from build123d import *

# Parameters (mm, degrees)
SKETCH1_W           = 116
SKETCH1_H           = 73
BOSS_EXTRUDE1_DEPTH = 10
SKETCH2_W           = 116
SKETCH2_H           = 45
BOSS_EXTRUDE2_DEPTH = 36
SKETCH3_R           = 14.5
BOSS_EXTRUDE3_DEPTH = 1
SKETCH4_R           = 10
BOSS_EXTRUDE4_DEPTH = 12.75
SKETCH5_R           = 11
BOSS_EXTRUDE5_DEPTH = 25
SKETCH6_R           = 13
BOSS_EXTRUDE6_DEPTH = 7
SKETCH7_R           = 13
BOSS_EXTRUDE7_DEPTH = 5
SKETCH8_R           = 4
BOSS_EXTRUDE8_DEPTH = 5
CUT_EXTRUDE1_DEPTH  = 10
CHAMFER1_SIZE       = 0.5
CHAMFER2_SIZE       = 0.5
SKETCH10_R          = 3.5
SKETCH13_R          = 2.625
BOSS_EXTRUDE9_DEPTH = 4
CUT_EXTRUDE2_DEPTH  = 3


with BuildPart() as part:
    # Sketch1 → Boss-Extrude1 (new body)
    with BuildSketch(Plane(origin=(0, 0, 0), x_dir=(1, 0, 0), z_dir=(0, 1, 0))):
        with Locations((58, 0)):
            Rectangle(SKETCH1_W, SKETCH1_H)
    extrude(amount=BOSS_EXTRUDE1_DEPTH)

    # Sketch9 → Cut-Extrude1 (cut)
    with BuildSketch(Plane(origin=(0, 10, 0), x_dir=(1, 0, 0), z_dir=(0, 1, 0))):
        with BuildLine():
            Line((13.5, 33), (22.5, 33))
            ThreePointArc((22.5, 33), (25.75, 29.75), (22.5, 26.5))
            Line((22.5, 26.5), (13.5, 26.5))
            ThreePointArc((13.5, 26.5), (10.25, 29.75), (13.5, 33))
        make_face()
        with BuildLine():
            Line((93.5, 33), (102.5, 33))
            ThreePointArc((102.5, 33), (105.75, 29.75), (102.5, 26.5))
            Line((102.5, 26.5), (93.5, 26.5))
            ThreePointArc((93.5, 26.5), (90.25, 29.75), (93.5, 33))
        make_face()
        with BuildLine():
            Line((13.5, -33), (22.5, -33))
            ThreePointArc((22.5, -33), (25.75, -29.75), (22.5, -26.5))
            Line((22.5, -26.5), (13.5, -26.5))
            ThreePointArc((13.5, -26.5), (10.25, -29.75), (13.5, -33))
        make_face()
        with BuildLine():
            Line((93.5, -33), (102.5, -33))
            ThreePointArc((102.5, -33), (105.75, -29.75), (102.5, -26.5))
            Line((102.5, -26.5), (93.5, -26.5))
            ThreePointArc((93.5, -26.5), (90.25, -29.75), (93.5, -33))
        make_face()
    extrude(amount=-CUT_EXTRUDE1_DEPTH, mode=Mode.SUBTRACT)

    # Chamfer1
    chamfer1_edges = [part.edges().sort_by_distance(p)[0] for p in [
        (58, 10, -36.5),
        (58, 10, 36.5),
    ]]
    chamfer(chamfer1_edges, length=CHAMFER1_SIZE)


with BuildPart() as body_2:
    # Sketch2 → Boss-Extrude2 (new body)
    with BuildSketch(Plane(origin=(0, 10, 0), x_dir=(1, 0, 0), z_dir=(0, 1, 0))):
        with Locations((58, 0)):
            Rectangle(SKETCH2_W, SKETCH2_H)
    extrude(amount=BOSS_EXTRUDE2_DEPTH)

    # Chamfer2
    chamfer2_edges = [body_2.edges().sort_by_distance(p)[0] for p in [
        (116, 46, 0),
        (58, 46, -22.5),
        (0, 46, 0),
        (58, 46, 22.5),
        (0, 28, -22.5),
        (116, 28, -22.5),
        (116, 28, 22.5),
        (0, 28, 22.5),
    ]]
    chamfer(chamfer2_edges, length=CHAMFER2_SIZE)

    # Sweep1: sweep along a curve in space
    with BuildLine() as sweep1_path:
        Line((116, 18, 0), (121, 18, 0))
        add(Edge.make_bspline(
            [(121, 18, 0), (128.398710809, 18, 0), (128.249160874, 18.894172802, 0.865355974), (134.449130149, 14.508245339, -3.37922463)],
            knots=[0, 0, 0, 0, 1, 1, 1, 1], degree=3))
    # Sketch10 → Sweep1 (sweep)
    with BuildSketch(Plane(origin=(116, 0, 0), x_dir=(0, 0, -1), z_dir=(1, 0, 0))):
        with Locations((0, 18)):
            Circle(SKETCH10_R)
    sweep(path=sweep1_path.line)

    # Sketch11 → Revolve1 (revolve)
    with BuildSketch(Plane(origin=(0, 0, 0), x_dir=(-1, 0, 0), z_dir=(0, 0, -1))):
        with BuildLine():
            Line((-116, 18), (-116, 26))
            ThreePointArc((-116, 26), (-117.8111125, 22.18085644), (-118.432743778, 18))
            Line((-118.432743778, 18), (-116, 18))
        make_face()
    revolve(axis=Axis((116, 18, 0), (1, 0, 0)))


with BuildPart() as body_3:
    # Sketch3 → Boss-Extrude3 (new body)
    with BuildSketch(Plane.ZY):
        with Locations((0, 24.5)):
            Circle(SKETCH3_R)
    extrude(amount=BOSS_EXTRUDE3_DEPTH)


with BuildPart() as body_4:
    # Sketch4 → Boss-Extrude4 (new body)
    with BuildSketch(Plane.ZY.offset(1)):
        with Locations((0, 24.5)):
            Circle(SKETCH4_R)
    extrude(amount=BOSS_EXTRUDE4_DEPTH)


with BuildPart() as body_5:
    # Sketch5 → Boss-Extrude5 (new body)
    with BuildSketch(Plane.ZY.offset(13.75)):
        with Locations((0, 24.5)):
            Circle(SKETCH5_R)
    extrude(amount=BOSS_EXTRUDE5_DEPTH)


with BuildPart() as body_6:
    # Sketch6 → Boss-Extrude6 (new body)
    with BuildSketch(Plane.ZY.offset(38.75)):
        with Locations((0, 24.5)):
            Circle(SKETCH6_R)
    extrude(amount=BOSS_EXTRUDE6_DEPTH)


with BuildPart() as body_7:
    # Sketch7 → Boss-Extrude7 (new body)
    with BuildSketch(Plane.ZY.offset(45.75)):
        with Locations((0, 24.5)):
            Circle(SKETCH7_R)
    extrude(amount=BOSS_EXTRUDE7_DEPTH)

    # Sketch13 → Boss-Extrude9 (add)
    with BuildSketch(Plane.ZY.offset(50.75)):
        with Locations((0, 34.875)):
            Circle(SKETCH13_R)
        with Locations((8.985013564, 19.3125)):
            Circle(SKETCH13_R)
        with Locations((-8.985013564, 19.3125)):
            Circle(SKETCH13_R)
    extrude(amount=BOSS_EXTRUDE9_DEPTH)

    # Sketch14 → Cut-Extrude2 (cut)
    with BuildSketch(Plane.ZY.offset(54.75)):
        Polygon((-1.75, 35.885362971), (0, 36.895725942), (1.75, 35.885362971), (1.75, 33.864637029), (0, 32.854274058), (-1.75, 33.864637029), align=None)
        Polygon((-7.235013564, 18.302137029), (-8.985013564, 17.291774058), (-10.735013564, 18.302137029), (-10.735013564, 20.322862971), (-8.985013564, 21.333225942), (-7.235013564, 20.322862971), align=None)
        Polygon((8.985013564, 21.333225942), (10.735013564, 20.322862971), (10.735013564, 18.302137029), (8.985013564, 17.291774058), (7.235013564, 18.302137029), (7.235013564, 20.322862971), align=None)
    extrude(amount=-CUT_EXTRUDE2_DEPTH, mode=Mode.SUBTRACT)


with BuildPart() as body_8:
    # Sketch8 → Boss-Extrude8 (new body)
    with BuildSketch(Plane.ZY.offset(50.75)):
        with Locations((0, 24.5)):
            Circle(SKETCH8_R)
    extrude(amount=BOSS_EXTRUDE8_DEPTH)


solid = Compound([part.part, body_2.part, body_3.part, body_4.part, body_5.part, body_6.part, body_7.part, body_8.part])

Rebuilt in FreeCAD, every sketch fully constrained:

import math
import FreeCAD as App
import Part
import Sketcher
Q = App.Units.Quantity


def edges_at(feature, points):
    """Names of the edges that pass closest to the given points."""
    edges = feature.Shape.Edges
    near = lambda p: min(range(len(edges)), key=lambda i: edges[i].distToShape(Part.Vertex(*p))[0])
    return sorted({f"Edge{near(p) + 1}" for p in points})

doc = App.newDocument("Part")
body = doc.addObject("PartDesign::Body", "Body")

# Sketch on XZ plane
sketch1 = body.newObject("Sketcher::SketchObject", "Sketch")
sketch1.AttachmentSupport = (doc.getObject("XZ_Plane"), [""])
sketch1.MapMode = "FlatFace"
sketch1.addGeometry(Part.LineSegment(App.Vector(0, -36, 0), App.Vector(0, 36, 0)), False)
sketch1.addGeometry(Part.LineSegment(App.Vector(0, 36, 0), App.Vector(116, 36, 0)), False)
sketch1.addGeometry(Part.LineSegment(App.Vector(116, 36, 0), App.Vector(116, -36, 0)), False)
sketch1.addGeometry(Part.LineSegment(App.Vector(116, -36, 0), App.Vector(0, -36, 0)), False)
sketch1.addConstraint(Sketcher.Constraint("Coincident", 0, 2, 1, 1))
sketch1.addConstraint(Sketcher.Constraint("Coincident", 1, 2, 2, 1))
sketch1.addConstraint(Sketcher.Constraint("Coincident", 2, 2, 3, 1))
sketch1.addConstraint(Sketcher.Constraint("Coincident", 3, 2, 0, 1))
sketch1.addConstraint(Sketcher.Constraint("Vertical", 0))
sketch1.addConstraint(Sketcher.Constraint("Horizontal", 1))
sketch1.addConstraint(Sketcher.Constraint("Vertical", 2))
sketch1.addConstraint(Sketcher.Constraint("Horizontal", 3))
sketch1.addConstraint(Sketcher.Constraint("Symmetric", 0, 2, 3, 2, -1, 1))
sketch1.addConstraint(Sketcher.Constraint("DistanceX", 1, 1, 1, 2, Q("116 mm")))
sketch1.addConstraint(Sketcher.Constraint("DistanceY", 0, 1, 0, 2, Q("73 mm")))
pad1 = body.newObject("PartDesign::Pad", "Pad")
pad1.Profile = sketch1
pad1.Length = 10
pad1.Reversed = True

# Sketch on XZ plane
sketch2 = body.newObject("Sketcher::SketchObject", "Sketch001")
sketch2.AttachmentSupport = (doc.getObject("XZ_Plane"), [""])
sketch2.MapMode = "FlatFace"
sketch2.AttachmentOffset = App.Placement(App.Vector(0, 0, -10), App.Rotation())
sketch2.addGeometry(Part.LineSegment(App.Vector(22.5, -33, 0), App.Vector(13.5, -33, 0)), False)
sketch2.addGeometry(Part.ArcOfCircle(Part.Circle(App.Vector(13.5, -29.8, 0), App.Vector(0, 0, 1), 3.2), math.radians(90), math.radians(270)), False)
sketch2.addGeometry(Part.LineSegment(App.Vector(13.5, -26.5, 0), App.Vector(22.5, -26.5, 0)), False)
sketch2.addGeometry(Part.ArcOfCircle(Part.Circle(App.Vector(22.5, -29.8, 0), App.Vector(0, 0, 1), 3.2), math.radians(-90), math.radians(90)), False)
sketch2.addGeometry(Part.LineSegment(App.Vector(102.5, -33, 0), App.Vector(93.5, -33, 0)), False)
sketch2.addGeometry(Part.ArcOfCircle(Part.Circle(App.Vector(93.5, -29.8, 0), App.Vector(0, 0, 1), 3.2), math.radians(90), math.radians(270)), False)
sketch2.addGeometry(Part.LineSegment(App.Vector(93.5, -26.5, 0), App.Vector(102.5, -26.5, 0)), False)
sketch2.addGeometry(Part.ArcOfCircle(Part.Circle(App.Vector(102.5, -29.8, 0), App.Vector(0, 0, 1), 3.2), math.radians(-90), math.radians(90)), False)
sketch2.addGeometry(Part.LineSegment(App.Vector(13.5, 33, 0), App.Vector(22.5, 33, 0)), False)
sketch2.addGeometry(Part.ArcOfCircle(Part.Circle(App.Vector(22.5, 29.8, 0), App.Vector(0, 0, 1), 3.2), math.radians(-90), math.radians(90)), False)
sketch2.addGeometry(Part.LineSegment(App.Vector(22.5, 26.5, 0), App.Vector(13.5, 26.5, 0)), False)
sketch2.addGeometry(Part.ArcOfCircle(Part.Circle(App.Vector(13.5, 29.8, 0), App.Vector(0, 0, 1), 3.2), math.radians(90), math.radians(270)), False)
sketch2.addGeometry(Part.LineSegment(App.Vector(93.5, 33, 0), App.Vector(102.5, 33, 0)), False)
sketch2.addGeometry(Part.ArcOfCircle(Part.Circle(App.Vector(102.5, 29.8, 0), App.Vector(0, 0, 1), 3.2), math.radians(-90), math.radians(90)), False)
sketch2.addGeometry(Part.LineSegment(App.Vector(102.5, 26.5, 0), App.Vector(93.5, 26.5, 0)), False)
sketch2.addGeometry(Part.ArcOfCircle(Part.Circle(App.Vector(93.5, 29.8, 0), App.Vector(0, 0, 1), 3.2), math.radians(90), math.radians(270)), False)
sketch2.addConstraint(Sketcher.Constraint("Tangent", 0, 2, 1, 2))
sketch2.addConstraint(Sketcher.Constraint("Tangent", 1, 1, 2, 1))
sketch2.addConstraint(Sketcher.Constraint("Tangent", 2, 2, 3, 2))
sketch2.addConstraint(Sketcher.Constraint("Tangent", 3, 1, 0, 1))
sketch2.addConstraint(Sketcher.Constraint("Tangent", 4, 2, 5, 2))
sketch2.addConstraint(Sketcher.Constraint("Tangent", 5, 1, 6, 1))
sketch2.addConstraint(Sketcher.Constraint("Tangent", 6, 2, 7, 2))
sketch2.addConstraint(Sketcher.Constraint("Tangent", 7, 1, 4, 1))
sketch2.addConstraint(Sketcher.Constraint("Tangent", 8, 2, 9, 2))
sketch2.addConstraint(Sketcher.Constraint("Tangent", 9, 1, 10, 1))
sketch2.addConstraint(Sketcher.Constraint("Tangent", 10, 2, 11, 2))
sketch2.addConstraint(Sketcher.Constraint("Tangent", 11, 1, 8, 1))
sketch2.addConstraint(Sketcher.Constraint("Tangent", 12, 2, 13, 2))
sketch2.addConstraint(Sketcher.Constraint("Tangent", 13, 1, 14, 1))
sketch2.addConstraint(Sketcher.Constraint("Tangent", 14, 2, 15, 2))
sketch2.addConstraint(Sketcher.Constraint("Tangent", 15, 1, 12, 1))
sketch2.addConstraint(Sketcher.Constraint("Horizontal", 0))
sketch2.addConstraint(Sketcher.Constraint("Horizontal", 2))
sketch2.addConstraint(Sketcher.Constraint("Horizontal", 4))
sketch2.addConstraint(Sketcher.Constraint("Horizontal", 6))
sketch2.addConstraint(Sketcher.Constraint("Horizontal", 8))
sketch2.addConstraint(Sketcher.Constraint("Horizontal", 10))
sketch2.addConstraint(Sketcher.Constraint("Horizontal", 12))
sketch2.addConstraint(Sketcher.Constraint("Horizontal", 14))
sketch2.addConstraint(Sketcher.Constraint("Equal", 3, 5))
sketch2.addConstraint(Sketcher.Constraint("Equal", 7, 9))
sketch2.addConstraint(Sketcher.Constraint("Equal", 11, 13))
sketch2.addConstraint(Sketcher.Constraint("Symmetric", 3, 3, 9, 3, -1))
sketch2.addConstraint(Sketcher.Constraint("Symmetric", 7, 3, 13, 3, -1))
sketch2.addConstraint(Sketcher.Constraint("Horizontal", 3, 3, 5, 3))
sketch2.addConstraint(Sketcher.Constraint("Vertical", 1, 3, 11, 3))
sketch2.addConstraint(Sketcher.Constraint("Vertical", 5, 3, 15, 3))
sketch2.addConstraint(Sketcher.Constraint("Equal", 2, 4))
sketch2.addConstraint(Sketcher.Constraint("DistanceX", 0, 2, 0, 1, Q("9 mm")))
sketch2.addConstraint(Sketcher.Constraint("Radius", 1, Q("3.25 mm")))
sketch2.addConstraint(Sketcher.Constraint("DistanceY", 0, 2, -1, 1, Q("33 mm")))
sketch2.addConstraint(Sketcher.Constraint("DistanceX", 3, 3, 5, 3, Q("71 mm")))
sketch2.addConstraint(Sketcher.Constraint("DistanceX", -1, 1, 1, 3, Q("13.5 mm")))
pocket1 = body.newObject("PartDesign::Pocket", "Pocket")
pocket1.Profile = sketch2
pocket1.Length = 10
pocket1.Reversed = True
doc.recompute()

chamfer = body.newObject("PartDesign::Chamfer", "Chamfer")
chamfer.Base = (pocket1, edges_at(pocket1, [(58, 10, -36.5), (58, 10, 36.5)]))
chamfer.Size = 0.5
body2 = doc.addObject("PartDesign::Body", "Body001")

# Sketch on XZ plane
sketch3 = body2.newObject("Sketcher::SketchObject", "Sketch002")
sketch3.AttachmentSupport = (doc.getObject("XZ_Plane001"), [""])
sketch3.MapMode = "FlatFace"
sketch3.AttachmentOffset = App.Placement(App.Vector(0, 0, -10), App.Rotation())
sketch3.addGeometry(Part.LineSegment(App.Vector(0, -22, 0), App.Vector(0, 22, 0)), False)
sketch3.addGeometry(Part.LineSegment(App.Vector(0, 22, 0), App.Vector(116, 22, 0)), False)
sketch3.addGeometry(Part.LineSegment(App.Vector(116, 22, 0), App.Vector(116, -22, 0)), False)
sketch3.addGeometry(Part.LineSegment(App.Vector(116, -22, 0), App.Vector(0, -22, 0)), False)
sketch3.addConstraint(Sketcher.Constraint("Coincident", 0, 2, 1, 1))
sketch3.addConstraint(Sketcher.Constraint("Coincident", 1, 2, 2, 1))
sketch3.addConstraint(Sketcher.Constraint("Coincident", 2, 2, 3, 1))
sketch3.addConstraint(Sketcher.Constraint("Coincident", 3, 2, 0, 1))
sketch3.addConstraint(Sketcher.Constraint("Vertical", 0))
sketch3.addConstraint(Sketcher.Constraint("Horizontal", 1))
sketch3.addConstraint(Sketcher.Constraint("Vertical", 2))
sketch3.addConstraint(Sketcher.Constraint("Horizontal", 3))
sketch3.addConstraint(Sketcher.Constraint("Symmetric", 0, 2, 3, 2, -1, 1))
sketch3.addConstraint(Sketcher.Constraint("DistanceX", 1, 1, 1, 2, Q("116 mm")))
sketch3.addConstraint(Sketcher.Constraint("DistanceY", 0, 1, 0, 2, Q("45 mm")))
pad2 = body2.newObject("PartDesign::Pad", "Pad001")
pad2.Profile = sketch3
pad2.Length = 36
pad2.Reversed = True
doc.recompute()

chamfer2 = body2.newObject("PartDesign::Chamfer", "Chamfer001")
chamfer2.Base = (pad2, edges_at(pad2, [
    (116, 46, 0),
    (58, 46, -22.5),
    (0, 46, 0),
    (58, 46, 22.5),
    (0, 28, -22.5),
    (116, 28, -22.5),
    (116, 28, 22.5),
    (0, 28, 22.5),
]))
chamfer2.Size = 0.5

# Sketch on YZ plane
sketch4 = body2.newObject("Sketcher::SketchObject", "Sketch003")
sketch4.AttachmentSupport = (doc.getObject("YZ_Plane001"), [""])
sketch4.MapMode = "FlatFace"
sketch4.AttachmentOffset = App.Placement(App.Vector(0, 0, 116), App.Rotation())
sketch4.addGeometry(Part.Circle(App.Vector(18, 0, 0), App.Vector(0, 0, 1), 3.5), False)
sketch4.addConstraint(Sketcher.Constraint("PointOnObject", 0, 3, -1))
sketch4.addConstraint(Sketcher.Constraint("Diameter", 0, Q("7 mm")))
sketch4.addConstraint(Sketcher.Constraint("DistanceX", -1, 1, 0, 3, Q("18 mm")))

# Sketch on an angled plane
sketch5 = body2.newObject("Sketcher::SketchObject", "Sketch004")
sketch5.Placement = App.Placement(App.Vector(0, 8.705283, -8.995173), App.Rotation(App.Vector(0, 0.718591115, 0.695432821), App.Vector(0.999999999, 0, 0), App.Vector(0, 0.695432821, -0.718591115), "ZXY"))
sketch5.addGeometry(Part.LineSegment(App.Vector(12.93464, 116, 0), App.Vector(12.93464, 121, 0)), False)
sketch5.addGeometry(Part.BSplineCurve([App.Vector(12.93464, 121, 0), App.Vector(12.93464, 128.398711, 0), App.Vector(14.178982, 128.249161, 0), App.Vector(8.075472, 134.44913, 0)], [4, 4], [0, 1], False, 3, [1, 1, 1, 1], False), False)
sketch5.addConstraint(Sketcher.Constraint("Block", 1))
sketch5.addConstraint(Sketcher.Constraint("Coincident", 0, 2, 1, 1))
sketch5.addConstraint(Sketcher.Constraint("Vertical", 0))
sketch5.addConstraint(Sketcher.Constraint("DistanceY", 0, 1, 0, 2, Q("5 mm")))
doc.recompute()

additivepipe = body2.newObject("PartDesign::AdditivePipe", "AdditivePipe")
additivepipe.Profile = sketch4
additivepipe.Spine = (sketch5, ["Edge1", "Edge2"])

# Sketch on XY plane
sketch6 = body2.newObject("Sketcher::SketchObject", "Sketch005")
sketch6.AttachmentSupport = (doc.getObject("XY_Plane001"), [""])
sketch6.MapMode = "FlatFace"
sketch6.addGeometry(Part.LineSegment(App.Vector(116, 18, 0), App.Vector(116, 26, 0)), False)
sketch6.addGeometry(Part.ArcOfCircle(Part.Circle(App.Vector(104.1, 18, 0), App.Vector(0, 0, 1), 14.4), math.radians(0), math.radians(34)), False)
sketch6.addGeometry(Part.LineSegment(App.Vector(118.4, 18, 0), App.Vector(116, 18, 0)), False)
sketch6.addGeometry(Part.LineSegment(App.Vector(104.1, 18, 0), App.Vector(118.4, 18, 0)), True)  # axis
sketch6.addConstraint(Sketcher.Constraint("Coincident", 0, 2, 1, 2))
sketch6.addConstraint(Sketcher.Constraint("Coincident", 1, 1, 2, 1))
sketch6.addConstraint(Sketcher.Constraint("Coincident", 2, 2, 0, 1))
sketch6.addConstraint(Sketcher.Constraint("Vertical", 0))
sketch6.addConstraint(Sketcher.Constraint("Horizontal", 2))
sketch6.addConstraint(Sketcher.Constraint("Horizontal", 3))
sketch6.addConstraint(Sketcher.Constraint("Coincident", 3, 1, 1, 3))
sketch6.addConstraint(Sketcher.Constraint("Coincident", 3, 2, 1, 1))
sketch6.addConstraint(Sketcher.Constraint("DistanceY", 0, 1, 0, 2, Q("8 mm")))
sketch6.addConstraint(Sketcher.Constraint("DistanceY", -1, 1, 1, 3, Q("18 mm")))
sketch6.addConstraint(Sketcher.Constraint("DistanceX", -1, 1, 0, 2, Q("116 mm")))
sketch6.addConstraint(Sketcher.Constraint("Radius", 1, Q("14.370244 mm")))
revolution = body2.newObject("PartDesign::Revolution", "Revolution")
revolution.Profile = sketch6
revolution.ReferenceAxis = (sketch6, ["Axis0"])
revolution.Angle = 360
body3 = doc.addObject("PartDesign::Body", "Body002")

# Sketch on YZ plane
sketch7 = body3.newObject("Sketcher::SketchObject", "Sketch006")
sketch7.AttachmentSupport = (doc.getObject("YZ_Plane002"), [""])
sketch7.MapMode = "FlatFace"
sketch7.addGeometry(Part.Circle(App.Vector(24, 0, 0), App.Vector(0, 0, 1), 14), False)
sketch7.addConstraint(Sketcher.Constraint("PointOnObject", 0, 3, -1))
sketch7.addConstraint(Sketcher.Constraint("Diameter", 0, Q("29 mm")))
sketch7.addConstraint(Sketcher.Constraint("DistanceX", -1, 1, 0, 3, Q("24.5 mm")))
pad3 = body3.newObject("PartDesign::Pad", "Pad002")
pad3.Profile = sketch7
pad3.Length = 1
pad3.Reversed = True
body4 = doc.addObject("PartDesign::Body", "Body003")

# Sketch on YZ plane
sketch8 = body4.newObject("Sketcher::SketchObject", "Sketch007")
sketch8.AttachmentSupport = (doc.getObject("YZ_Plane003"), [""])
sketch8.MapMode = "FlatFace"
sketch8.AttachmentOffset = App.Placement(App.Vector(0, 0, -1), App.Rotation())
sketch8.addGeometry(Part.Circle(App.Vector(24, 0, 0), App.Vector(0, 0, 1), 10), False)
sketch8.addConstraint(Sketcher.Constraint("PointOnObject", 0, 3, -1))
sketch8.addConstraint(Sketcher.Constraint("Diameter", 0, Q("20 mm")))
sketch8.addConstraint(Sketcher.Constraint("DistanceX", -1, 1, 0, 3, Q("24.5 mm")))
pad4 = body4.newObject("PartDesign::Pad", "Pad003")
pad4.Profile = sketch8
pad4.Length = 12.75
pad4.Reversed = True
body5 = doc.addObject("PartDesign::Body", "Body004")

# Sketch on YZ plane
sketch9 = body5.newObject("Sketcher::SketchObject", "Sketch008")
sketch9.AttachmentSupport = (doc.getObject("YZ_Plane004"), [""])
sketch9.MapMode = "FlatFace"
sketch9.AttachmentOffset = App.Placement(App.Vector(0, 0, -13.75), App.Rotation())
sketch9.addGeometry(Part.Circle(App.Vector(24, 0, 0), App.Vector(0, 0, 1), 11), False)
sketch9.addConstraint(Sketcher.Constraint("PointOnObject", 0, 3, -1))
sketch9.addConstraint(Sketcher.Constraint("Diameter", 0, Q("22 mm")))
sketch9.addConstraint(Sketcher.Constraint("DistanceX", -1, 1, 0, 3, Q("24.5 mm")))
pad5 = body5.newObject("PartDesign::Pad", "Pad004")
pad5.Profile = sketch9
pad5.Length = 25
pad5.Reversed = True
body6 = doc.addObject("PartDesign::Body", "Body005")

# Sketch on YZ plane
sketch10 = body6.newObject("Sketcher::SketchObject", "Sketch009")
sketch10.AttachmentSupport = (doc.getObject("YZ_Plane005"), [""])
sketch10.MapMode = "FlatFace"
sketch10.AttachmentOffset = App.Placement(App.Vector(0, 0, -38.75), App.Rotation())
sketch10.addGeometry(Part.Circle(App.Vector(24, 0, 0), App.Vector(0, 0, 1), 13), False)
sketch10.addConstraint(Sketcher.Constraint("PointOnObject", 0, 3, -1))
sketch10.addConstraint(Sketcher.Constraint("Diameter", 0, Q("26 mm")))
sketch10.addConstraint(Sketcher.Constraint("DistanceX", -1, 1, 0, 3, Q("24.5 mm")))
pad6 = body6.newObject("PartDesign::Pad", "Pad005")
pad6.Profile = sketch10
pad6.Length = 7
pad6.Reversed = True
body7 = doc.addObject("PartDesign::Body", "Body006")

# Sketch on YZ plane
sketch11 = body7.newObject("Sketcher::SketchObject", "Sketch010")
sketch11.AttachmentSupport = (doc.getObject("YZ_Plane006"), [""])
sketch11.MapMode = "FlatFace"
sketch11.AttachmentOffset = App.Placement(App.Vector(0, 0, -45.75), App.Rotation())
sketch11.addGeometry(Part.Circle(App.Vector(24, 0, 0), App.Vector(0, 0, 1), 13), False)
sketch11.addConstraint(Sketcher.Constraint("PointOnObject", 0, 3, -1))
sketch11.addConstraint(Sketcher.Constraint("Diameter", 0, Q("26 mm")))
sketch11.addConstraint(Sketcher.Constraint("DistanceX", -1, 1, 0, 3, Q("24.5 mm")))
pad7 = body7.newObject("PartDesign::Pad", "Pad006")
pad7.Profile = sketch11
pad7.Length = 5
pad7.Reversed = True

# Sketch on YZ plane
sketch12 = body7.newObject("Sketcher::SketchObject", "Sketch011")
sketch12.AttachmentSupport = (doc.getObject("YZ_Plane006"), [""])
sketch12.MapMode = "FlatFace"
sketch12.AttachmentOffset = App.Placement(App.Vector(0, 0, -50.75), App.Rotation())
sketch12.addGeometry(Part.Circle(App.Vector(34.9, 0, 0), App.Vector(0, 0, 1), 2.6), False)
sketch12.addGeometry(Part.Circle(App.Vector(19.3, 9, 0), App.Vector(0, 0, 1), 2.6), False)
sketch12.addGeometry(Part.Circle(App.Vector(19.3, -9, 0), App.Vector(0, 0, 1), 2.6), False)
sketch12.addConstraint(Sketcher.Constraint("Equal", 0, 1))
sketch12.addConstraint(Sketcher.Constraint("Equal", 1, 2))
sketch12.addConstraint(Sketcher.Constraint("Symmetric", 1, 3, 2, 3, -1))
sketch12.addConstraint(Sketcher.Constraint("PointOnObject", 0, 3, -1))
sketch12.addConstraint(Sketcher.Constraint("Diameter", 0, Q("5.25 mm")))
sketch12.addConstraint(Sketcher.Constraint("DistanceX", -1, 1, 0, 3, Q("34.875 mm")))
sketch12.addConstraint(Sketcher.Constraint("DistanceX", -1, 1, 1, 3, Q("19.3125 mm")))
sketch12.addConstraint(Sketcher.Constraint("DistanceY", -1, 1, 1, 3, Q("8.985014 mm")))
pad8 = body7.newObject("PartDesign::Pad", "Pad007")
pad8.Profile = sketch12
pad8.Length = 4
pad8.Reversed = True

# Sketch on YZ plane
sketch13 = body7.newObject("Sketcher::SketchObject", "Sketch012")
sketch13.AttachmentSupport = (doc.getObject("YZ_Plane006"), [""])
sketch13.MapMode = "FlatFace"
sketch13.AttachmentOffset = App.Placement(App.Vector(0, 0, -54.75), App.Rotation())
sketch13.addGeometry(Part.LineSegment(App.Vector(36.9, 0, 0), App.Vector(35.9, -1.8, 0)), False)
sketch13.addGeometry(Part.LineSegment(App.Vector(35.9, -1.8, 0), App.Vector(33.9, -1.8, 0)), False)
sketch13.addGeometry(Part.LineSegment(App.Vector(33.9, -1.8, 0), App.Vector(32.9, 0, 0)), False)
sketch13.addGeometry(Part.LineSegment(App.Vector(32.9, 0, 0), App.Vector(33.9, 1.8, 0)), False)
sketch13.addGeometry(Part.LineSegment(App.Vector(33.9, 1.8, 0), App.Vector(35.9, 1.8, 0)), False)
sketch13.addGeometry(Part.LineSegment(App.Vector(35.9, 1.8, 0), App.Vector(36.9, 0, 0)), False)
sketch13.addGeometry(Part.LineSegment(App.Vector(17.3, -9, 0), App.Vector(18.3, -7.2, 0)), False)
sketch13.addGeometry(Part.LineSegment(App.Vector(18.3, -7.2, 0), App.Vector(20.3, -7.2, 0)), False)
sketch13.addGeometry(Part.LineSegment(App.Vector(20.3, -7.2, 0), App.Vector(21.3, -9, 0)), False)
sketch13.addGeometry(Part.LineSegment(App.Vector(21.3, -9, 0), App.Vector(20.3, -10.7, 0)), False)
sketch13.addGeometry(Part.LineSegment(App.Vector(20.3, -10.7, 0), App.Vector(18.3, -10.7, 0)), False)
sketch13.addGeometry(Part.LineSegment(App.Vector(18.3, -10.7, 0), App.Vector(17.3, -9, 0)), False)
sketch13.addGeometry(Part.LineSegment(App.Vector(20.3, 10.7, 0), App.Vector(21.3, 9, 0)), False)
sketch13.addGeometry(Part.LineSegment(App.Vector(21.3, 9, 0), App.Vector(20.3, 7.2, 0)), False)
sketch13.addGeometry(Part.LineSegment(App.Vector(20.3, 7.2, 0), App.Vector(18.3, 7.2, 0)), False)
sketch13.addGeometry(Part.LineSegment(App.Vector(18.3, 7.2, 0), App.Vector(17.3, 9, 0)), False)
sketch13.addGeometry(Part.LineSegment(App.Vector(17.3, 9, 0), App.Vector(18.3, 10.7, 0)), False)
sketch13.addGeometry(Part.LineSegment(App.Vector(18.3, 10.7, 0), App.Vector(20.3, 10.7, 0)), False)
sketch13.addConstraint(Sketcher.Constraint("Coincident", 0, 2, 1, 1))
sketch13.addConstraint(Sketcher.Constraint("Coincident", 1, 2, 2, 1))
sketch13.addConstraint(Sketcher.Constraint("Coincident", 2, 2, 3, 1))
sketch13.addConstraint(Sketcher.Constraint("Coincident", 3, 2, 4, 1))
sketch13.addConstraint(Sketcher.Constraint("Coincident", 4, 2, 5, 1))
sketch13.addConstraint(Sketcher.Constraint("Coincident", 5, 2, 0, 1))
sketch13.addConstraint(Sketcher.Constraint("Coincident", 6, 2, 7, 1))
sketch13.addConstraint(Sketcher.Constraint("Coincident", 7, 2, 8, 1))
sketch13.addConstraint(Sketcher.Constraint("Coincident", 8, 2, 9, 1))
sketch13.addConstraint(Sketcher.Constraint("Coincident", 9, 2, 10, 1))
sketch13.addConstraint(Sketcher.Constraint("Coincident", 10, 2, 11, 1))
sketch13.addConstraint(Sketcher.Constraint("Coincident", 11, 2, 6, 1))
sketch13.addConstraint(Sketcher.Constraint("Coincident", 12, 2, 13, 1))
sketch13.addConstraint(Sketcher.Constraint("Coincident", 13, 2, 14, 1))
sketch13.addConstraint(Sketcher.Constraint("Coincident", 14, 2, 15, 1))
sketch13.addConstraint(Sketcher.Constraint("Coincident", 15, 2, 16, 1))
sketch13.addConstraint(Sketcher.Constraint("Coincident", 16, 2, 17, 1))
sketch13.addConstraint(Sketcher.Constraint("Coincident", 17, 2, 12, 1))
sketch13.addConstraint(Sketcher.Constraint("Horizontal", 1))
sketch13.addConstraint(Sketcher.Constraint("Horizontal", 4))
sketch13.addConstraint(Sketcher.Constraint("Horizontal", 7))
sketch13.addConstraint(Sketcher.Constraint("Horizontal", 10))
sketch13.addConstraint(Sketcher.Constraint("Horizontal", 14))
sketch13.addConstraint(Sketcher.Constraint("Horizontal", 17))
sketch13.addConstraint(Sketcher.Constraint("Symmetric", 1, 2, 3, 2, -1))
sketch13.addConstraint(Sketcher.Constraint("Symmetric", 8, 2, 12, 2, -1))
sketch13.addConstraint(Sketcher.Constraint("Symmetric", 7, 2, 13, 2, -1))
sketch13.addConstraint(Sketcher.Constraint("Symmetric", 11, 2, 15, 2, -1))
sketch13.addConstraint(Sketcher.Constraint("Symmetric", 10, 2, 16, 2, -1))
sketch13.addConstraint(Sketcher.Constraint("PointOnObject", 2, 2, -1))
sketch13.addConstraint(Sketcher.Constraint("PointOnObject", 5, 2, -1))
sketch13.addConstraint(Sketcher.Constraint("Parallel", 0, 3))
sketch13.addConstraint(Sketcher.Constraint("Parallel", 2, 5))
sketch13.addConstraint(Sketcher.Constraint("Parallel", 3, 6))
sketch13.addConstraint(Sketcher.Constraint("Parallel", 5, 8))
sketch13.addConstraint(Sketcher.Constraint("Parallel", 6, 9))
sketch13.addConstraint(Sketcher.Constraint("Parallel", 8, 11))
sketch13.addConstraint(Sketcher.Constraint("Parallel", 11, 12))
sketch13.addConstraint(Sketcher.Constraint("Parallel", 12, 15))
sketch13.addConstraint(Sketcher.Constraint("Horizontal", 8, 2, 11, 2))
sketch13.addConstraint(Sketcher.Constraint("Vertical", 7, 2, 9, 2))
sketch13.addConstraint(Sketcher.Constraint("Equal", 4, 7))
sketch13.addConstraint(Sketcher.Constraint("Equal", 5, 6))
sketch13.addConstraint(Sketcher.Constraint("Angle", 0, Q("-120 deg")))
sketch13.addConstraint(Sketcher.Constraint("DistanceY", 1, 2, 3, 2, Q("3.5 mm")))
sketch13.addConstraint(Sketcher.Constraint("DistanceX", 6, 2, 1, 2, Q("15.5625 mm")))
sketch13.addConstraint(Sketcher.Constraint("DistanceX", 1, 2, 1, 1, Q("2.020726 mm")))
sketch13.addConstraint(Sketcher.Constraint("DistanceX", -1, 1, 0, 2, Q("35.885363 mm")))
sketch13.addConstraint(Sketcher.Constraint("DistanceY", 6, 2, -1, 1, Q("7.235014 mm")))
pocket2 = body7.newObject("PartDesign::Pocket", "Pocket001")
pocket2.Profile = sketch13
pocket2.Length = 3
pocket2.Reversed = True
body8 = doc.addObject("PartDesign::Body", "Body007")

# Sketch on YZ plane
sketch14 = body8.newObject("Sketcher::SketchObject", "Sketch013")
sketch14.AttachmentSupport = (doc.getObject("YZ_Plane007"), [""])
sketch14.MapMode = "FlatFace"
sketch14.AttachmentOffset = App.Placement(App.Vector(0, 0, -50.75), App.Rotation())
sketch14.addGeometry(Part.Circle(App.Vector(24.5, 0, 0), App.Vector(0, 0, 1), 4), False)
sketch14.addConstraint(Sketcher.Constraint("PointOnObject", 0, 3, -1))
sketch14.addConstraint(Sketcher.Constraint("Diameter", 0, Q("8 mm")))
sketch14.addConstraint(Sketcher.Constraint("DistanceX", -1, 1, 0, 3, Q("24.5 mm")))
pad9 = body8.newObject("PartDesign::Pad", "Pad008")
pad9.Profile = sketch14
pad9.Length = 5
pad9.Reversed = True

doc.recompute()
